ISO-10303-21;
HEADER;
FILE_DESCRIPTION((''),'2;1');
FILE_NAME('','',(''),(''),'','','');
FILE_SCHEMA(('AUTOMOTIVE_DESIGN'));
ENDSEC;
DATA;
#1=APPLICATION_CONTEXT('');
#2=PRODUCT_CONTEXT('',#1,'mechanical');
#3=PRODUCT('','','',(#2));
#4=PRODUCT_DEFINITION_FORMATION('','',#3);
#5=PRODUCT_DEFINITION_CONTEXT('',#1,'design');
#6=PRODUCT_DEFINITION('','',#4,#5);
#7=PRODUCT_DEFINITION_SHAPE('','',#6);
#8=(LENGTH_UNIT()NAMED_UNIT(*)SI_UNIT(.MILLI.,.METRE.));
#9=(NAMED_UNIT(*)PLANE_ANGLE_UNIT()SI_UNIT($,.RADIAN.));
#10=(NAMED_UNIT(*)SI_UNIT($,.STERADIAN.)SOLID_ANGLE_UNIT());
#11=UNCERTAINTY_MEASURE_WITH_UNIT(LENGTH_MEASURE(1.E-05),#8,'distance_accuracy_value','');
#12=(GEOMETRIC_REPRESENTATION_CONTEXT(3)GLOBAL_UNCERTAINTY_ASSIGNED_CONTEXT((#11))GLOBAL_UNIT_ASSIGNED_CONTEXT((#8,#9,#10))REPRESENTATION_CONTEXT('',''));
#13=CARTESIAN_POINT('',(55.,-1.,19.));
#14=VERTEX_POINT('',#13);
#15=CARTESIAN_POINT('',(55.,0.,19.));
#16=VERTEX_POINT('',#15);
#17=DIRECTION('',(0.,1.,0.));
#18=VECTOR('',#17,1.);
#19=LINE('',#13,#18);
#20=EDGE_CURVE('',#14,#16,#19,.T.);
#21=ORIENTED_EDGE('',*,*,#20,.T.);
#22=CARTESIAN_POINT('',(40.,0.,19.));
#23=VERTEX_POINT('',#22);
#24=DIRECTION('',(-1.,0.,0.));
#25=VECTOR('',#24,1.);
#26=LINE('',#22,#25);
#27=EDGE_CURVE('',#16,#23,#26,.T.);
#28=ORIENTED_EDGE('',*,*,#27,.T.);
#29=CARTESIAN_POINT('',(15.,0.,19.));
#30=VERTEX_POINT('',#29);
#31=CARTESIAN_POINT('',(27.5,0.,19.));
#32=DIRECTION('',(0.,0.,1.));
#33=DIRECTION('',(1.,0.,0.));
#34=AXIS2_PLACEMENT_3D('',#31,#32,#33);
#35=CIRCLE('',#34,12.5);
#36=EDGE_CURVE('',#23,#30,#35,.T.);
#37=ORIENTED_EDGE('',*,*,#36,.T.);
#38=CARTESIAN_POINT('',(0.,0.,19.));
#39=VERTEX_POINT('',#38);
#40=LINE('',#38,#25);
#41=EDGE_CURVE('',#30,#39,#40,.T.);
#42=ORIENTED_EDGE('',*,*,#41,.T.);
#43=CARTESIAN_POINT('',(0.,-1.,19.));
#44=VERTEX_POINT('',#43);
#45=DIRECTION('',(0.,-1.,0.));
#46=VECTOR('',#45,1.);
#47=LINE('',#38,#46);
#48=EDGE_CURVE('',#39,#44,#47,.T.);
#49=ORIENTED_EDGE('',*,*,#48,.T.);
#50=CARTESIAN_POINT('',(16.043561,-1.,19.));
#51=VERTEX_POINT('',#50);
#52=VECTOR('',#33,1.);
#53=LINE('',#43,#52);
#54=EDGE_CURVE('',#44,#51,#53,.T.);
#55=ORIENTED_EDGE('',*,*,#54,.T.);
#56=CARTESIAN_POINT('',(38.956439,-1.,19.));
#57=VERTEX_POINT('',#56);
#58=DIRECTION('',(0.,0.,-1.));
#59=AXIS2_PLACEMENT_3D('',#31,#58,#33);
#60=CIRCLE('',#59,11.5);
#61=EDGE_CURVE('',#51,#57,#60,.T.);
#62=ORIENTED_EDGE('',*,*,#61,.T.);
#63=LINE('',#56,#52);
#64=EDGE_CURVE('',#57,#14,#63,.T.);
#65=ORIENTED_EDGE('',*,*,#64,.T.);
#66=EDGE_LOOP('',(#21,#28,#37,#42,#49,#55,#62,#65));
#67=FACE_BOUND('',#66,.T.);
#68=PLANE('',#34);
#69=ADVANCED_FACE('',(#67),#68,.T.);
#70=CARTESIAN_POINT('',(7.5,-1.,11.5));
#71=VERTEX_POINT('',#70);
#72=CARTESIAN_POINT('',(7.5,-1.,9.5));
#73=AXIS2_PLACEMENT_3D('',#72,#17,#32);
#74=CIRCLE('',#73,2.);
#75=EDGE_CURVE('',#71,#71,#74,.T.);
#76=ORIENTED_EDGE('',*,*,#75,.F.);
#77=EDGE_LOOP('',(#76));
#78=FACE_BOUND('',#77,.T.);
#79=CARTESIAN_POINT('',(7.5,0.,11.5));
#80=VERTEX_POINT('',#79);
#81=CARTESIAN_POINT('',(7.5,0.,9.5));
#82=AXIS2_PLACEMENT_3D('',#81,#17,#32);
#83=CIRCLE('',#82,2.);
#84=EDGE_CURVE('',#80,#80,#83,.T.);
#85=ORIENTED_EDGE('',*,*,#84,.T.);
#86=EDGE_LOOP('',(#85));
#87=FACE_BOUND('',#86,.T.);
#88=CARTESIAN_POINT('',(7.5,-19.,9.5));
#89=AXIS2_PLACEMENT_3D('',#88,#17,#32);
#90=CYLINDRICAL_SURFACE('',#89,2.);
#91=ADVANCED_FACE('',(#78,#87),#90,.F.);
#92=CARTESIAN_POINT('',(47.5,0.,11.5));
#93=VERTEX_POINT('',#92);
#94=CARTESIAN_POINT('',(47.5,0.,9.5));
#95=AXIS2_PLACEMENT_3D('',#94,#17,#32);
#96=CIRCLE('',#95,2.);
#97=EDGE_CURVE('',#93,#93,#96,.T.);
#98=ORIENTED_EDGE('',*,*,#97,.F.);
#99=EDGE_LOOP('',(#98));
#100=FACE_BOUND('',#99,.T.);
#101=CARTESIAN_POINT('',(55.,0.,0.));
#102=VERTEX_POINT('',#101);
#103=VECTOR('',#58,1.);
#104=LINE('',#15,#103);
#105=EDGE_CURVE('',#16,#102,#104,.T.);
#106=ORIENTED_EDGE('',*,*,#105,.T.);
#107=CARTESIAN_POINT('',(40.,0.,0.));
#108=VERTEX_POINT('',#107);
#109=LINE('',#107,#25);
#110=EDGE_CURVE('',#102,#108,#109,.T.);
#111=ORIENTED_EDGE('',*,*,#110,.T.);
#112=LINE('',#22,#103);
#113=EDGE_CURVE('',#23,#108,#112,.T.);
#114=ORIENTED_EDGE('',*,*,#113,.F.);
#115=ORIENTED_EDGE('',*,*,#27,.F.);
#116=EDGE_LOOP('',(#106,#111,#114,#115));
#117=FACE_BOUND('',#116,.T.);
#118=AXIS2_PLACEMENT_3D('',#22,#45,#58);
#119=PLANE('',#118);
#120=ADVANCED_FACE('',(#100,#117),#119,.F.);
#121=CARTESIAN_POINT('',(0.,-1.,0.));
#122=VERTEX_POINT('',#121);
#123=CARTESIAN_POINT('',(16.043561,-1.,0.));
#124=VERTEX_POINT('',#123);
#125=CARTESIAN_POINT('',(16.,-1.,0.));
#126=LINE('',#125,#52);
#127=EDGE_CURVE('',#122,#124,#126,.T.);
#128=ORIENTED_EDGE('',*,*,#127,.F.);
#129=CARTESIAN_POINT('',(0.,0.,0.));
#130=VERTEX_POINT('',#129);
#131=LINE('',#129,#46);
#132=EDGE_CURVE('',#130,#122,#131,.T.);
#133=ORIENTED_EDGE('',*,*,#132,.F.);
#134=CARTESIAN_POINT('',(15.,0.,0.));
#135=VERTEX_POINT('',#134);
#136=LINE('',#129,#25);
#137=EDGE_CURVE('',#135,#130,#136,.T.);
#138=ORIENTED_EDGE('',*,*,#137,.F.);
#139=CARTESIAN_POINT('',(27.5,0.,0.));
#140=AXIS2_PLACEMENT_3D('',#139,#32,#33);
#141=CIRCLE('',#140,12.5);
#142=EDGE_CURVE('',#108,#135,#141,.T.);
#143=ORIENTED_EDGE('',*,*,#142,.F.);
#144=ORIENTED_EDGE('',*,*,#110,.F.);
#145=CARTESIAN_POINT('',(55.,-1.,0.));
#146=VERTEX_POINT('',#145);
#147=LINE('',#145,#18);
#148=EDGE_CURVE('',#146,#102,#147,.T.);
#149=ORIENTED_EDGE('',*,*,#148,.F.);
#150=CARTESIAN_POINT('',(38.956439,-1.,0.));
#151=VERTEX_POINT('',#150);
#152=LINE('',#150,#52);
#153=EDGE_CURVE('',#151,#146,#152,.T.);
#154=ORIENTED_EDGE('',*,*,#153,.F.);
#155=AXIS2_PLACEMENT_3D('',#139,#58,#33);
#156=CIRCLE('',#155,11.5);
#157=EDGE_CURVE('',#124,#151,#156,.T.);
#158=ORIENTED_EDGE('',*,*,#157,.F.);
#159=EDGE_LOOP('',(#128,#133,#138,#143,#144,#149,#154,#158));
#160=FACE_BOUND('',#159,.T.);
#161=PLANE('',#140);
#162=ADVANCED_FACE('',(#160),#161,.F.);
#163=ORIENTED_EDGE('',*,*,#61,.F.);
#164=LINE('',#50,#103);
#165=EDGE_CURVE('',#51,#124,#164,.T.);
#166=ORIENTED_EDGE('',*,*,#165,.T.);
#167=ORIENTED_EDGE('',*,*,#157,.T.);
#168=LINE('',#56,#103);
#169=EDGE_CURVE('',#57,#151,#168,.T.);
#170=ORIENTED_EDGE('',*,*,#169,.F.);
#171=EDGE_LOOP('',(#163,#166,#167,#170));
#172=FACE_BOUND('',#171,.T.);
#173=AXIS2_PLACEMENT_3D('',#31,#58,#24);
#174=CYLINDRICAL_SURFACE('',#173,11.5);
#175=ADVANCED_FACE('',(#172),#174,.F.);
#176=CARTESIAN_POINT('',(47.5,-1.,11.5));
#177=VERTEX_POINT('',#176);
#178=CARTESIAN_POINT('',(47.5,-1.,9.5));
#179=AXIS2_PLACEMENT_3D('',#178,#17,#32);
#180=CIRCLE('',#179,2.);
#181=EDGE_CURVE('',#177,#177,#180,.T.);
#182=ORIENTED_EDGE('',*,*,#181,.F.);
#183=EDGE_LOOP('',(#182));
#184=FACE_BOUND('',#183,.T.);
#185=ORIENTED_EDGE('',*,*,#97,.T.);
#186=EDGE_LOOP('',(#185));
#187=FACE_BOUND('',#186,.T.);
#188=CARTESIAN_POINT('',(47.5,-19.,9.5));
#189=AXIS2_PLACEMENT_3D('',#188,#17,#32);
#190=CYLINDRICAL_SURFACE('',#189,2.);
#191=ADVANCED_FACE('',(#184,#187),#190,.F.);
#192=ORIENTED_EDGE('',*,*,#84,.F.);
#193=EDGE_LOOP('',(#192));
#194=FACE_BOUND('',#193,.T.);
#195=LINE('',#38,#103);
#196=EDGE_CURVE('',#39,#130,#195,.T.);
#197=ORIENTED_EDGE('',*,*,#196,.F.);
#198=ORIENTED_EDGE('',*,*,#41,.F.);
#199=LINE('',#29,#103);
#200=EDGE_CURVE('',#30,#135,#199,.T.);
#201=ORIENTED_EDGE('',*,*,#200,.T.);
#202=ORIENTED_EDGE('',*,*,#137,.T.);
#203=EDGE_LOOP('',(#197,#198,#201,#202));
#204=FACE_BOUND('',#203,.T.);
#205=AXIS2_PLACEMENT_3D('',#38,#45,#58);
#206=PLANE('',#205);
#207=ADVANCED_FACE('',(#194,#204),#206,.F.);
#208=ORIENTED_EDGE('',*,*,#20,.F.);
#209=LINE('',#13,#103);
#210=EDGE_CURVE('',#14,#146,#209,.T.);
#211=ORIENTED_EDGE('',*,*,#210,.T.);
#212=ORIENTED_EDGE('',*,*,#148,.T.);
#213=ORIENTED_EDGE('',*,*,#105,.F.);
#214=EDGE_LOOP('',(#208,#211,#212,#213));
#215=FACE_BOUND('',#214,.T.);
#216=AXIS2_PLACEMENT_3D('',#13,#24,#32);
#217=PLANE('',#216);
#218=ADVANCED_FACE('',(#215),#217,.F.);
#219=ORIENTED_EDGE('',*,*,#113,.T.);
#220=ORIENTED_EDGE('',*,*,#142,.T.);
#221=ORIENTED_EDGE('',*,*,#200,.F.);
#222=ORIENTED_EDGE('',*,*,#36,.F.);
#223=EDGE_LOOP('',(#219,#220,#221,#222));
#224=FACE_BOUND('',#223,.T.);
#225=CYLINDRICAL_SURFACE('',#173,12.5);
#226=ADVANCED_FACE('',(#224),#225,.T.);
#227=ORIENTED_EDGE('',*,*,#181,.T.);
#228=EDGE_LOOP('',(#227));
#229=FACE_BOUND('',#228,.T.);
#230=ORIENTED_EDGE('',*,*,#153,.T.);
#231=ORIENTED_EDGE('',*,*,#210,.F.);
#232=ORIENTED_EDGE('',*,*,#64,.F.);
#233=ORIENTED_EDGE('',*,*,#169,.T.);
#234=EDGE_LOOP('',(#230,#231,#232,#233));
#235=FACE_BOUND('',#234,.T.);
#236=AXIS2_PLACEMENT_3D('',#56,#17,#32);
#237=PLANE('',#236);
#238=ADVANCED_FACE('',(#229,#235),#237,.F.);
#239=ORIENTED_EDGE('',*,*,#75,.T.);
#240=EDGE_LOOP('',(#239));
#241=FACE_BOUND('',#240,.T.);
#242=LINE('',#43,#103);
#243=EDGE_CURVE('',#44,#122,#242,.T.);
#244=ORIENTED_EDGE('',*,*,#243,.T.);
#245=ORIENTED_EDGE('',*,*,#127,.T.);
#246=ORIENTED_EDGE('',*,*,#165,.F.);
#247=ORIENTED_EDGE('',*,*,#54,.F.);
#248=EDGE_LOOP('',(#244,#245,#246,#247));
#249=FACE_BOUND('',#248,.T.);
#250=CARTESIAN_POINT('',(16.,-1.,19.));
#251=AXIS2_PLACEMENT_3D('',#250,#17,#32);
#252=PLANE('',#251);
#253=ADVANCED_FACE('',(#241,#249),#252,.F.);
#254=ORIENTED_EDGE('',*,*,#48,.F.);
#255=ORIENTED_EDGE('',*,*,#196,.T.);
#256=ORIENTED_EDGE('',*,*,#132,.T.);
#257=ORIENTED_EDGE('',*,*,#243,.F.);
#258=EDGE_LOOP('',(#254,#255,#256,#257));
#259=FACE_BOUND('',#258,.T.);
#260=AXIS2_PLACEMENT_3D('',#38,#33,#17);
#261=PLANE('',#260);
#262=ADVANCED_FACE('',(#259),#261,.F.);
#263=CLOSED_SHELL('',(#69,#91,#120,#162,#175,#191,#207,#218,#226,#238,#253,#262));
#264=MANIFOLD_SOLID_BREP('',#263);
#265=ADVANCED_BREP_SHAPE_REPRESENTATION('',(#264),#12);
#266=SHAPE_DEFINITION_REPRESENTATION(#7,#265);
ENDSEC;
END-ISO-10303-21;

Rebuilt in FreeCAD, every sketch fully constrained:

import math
import FreeCAD as App
import Part
import Sketcher

V = App.Vector

doc = App.newDocument("Part")
params = doc.addObject("Spreadsheet::Sheet", "Params")
for row, (alias, value) in enumerate([
    ("sketch1_radius", "11.5 mm"),
    ("sketch1_radius2", "12.5 mm"),
    ("sketch1_width", "15 mm"),
    ("sketch1_height", "1 mm"),
    ("pad1_length", "19 mm"),
    ("sketch2_diameter", "4 mm"),
    ("pocket1_length", "19 mm"),
], start=1):
    params.set(f"A{row}", alias)
    params.set(f"B{row}", "=" + value)
    params.setAlias(f"B{row}", alias)

body = doc.addObject("PartDesign::Body", "Body")

sketch1 = doc.addObject("Sketcher::SketchObject", "Sketch")
body.addObject(sketch1)
sketch1.AttachmentSupport = (doc.XY_Plane, [""])
sketch1.MapMode = "FlatFace"
sketch1.addGeometry(Part.LineSegment(V(15, 0, 0), V(0, 0, 0)), False)
sketch1.addGeometry(Part.LineSegment(V(0, 0, 0), V(0, -1, 0)), False)
sketch1.addGeometry(Part.LineSegment(V(0, -1, 0), V(16.043561, -1, 0)), False)
sketch1.addGeometry(Part.ArcOfCircle(Part.Circle(V(27.5, 0, 0), V(0, 0, 1), 11.5), math.radians(-4.988542), math.radians(184.988542)), False)
sketch1.addGeometry(Part.LineSegment(V(38.956439, -1, 0), V(55, -1, 0)), False)
sketch1.addGeometry(Part.LineSegment(V(55, -1, 0), V(55, 0, 0)), False)
sketch1.addGeometry(Part.LineSegment(V(55, 0, 0), V(40, 0, 0)), False)
sketch1.addGeometry(Part.ArcOfCircle(Part.Circle(V(27.5, 0, 0), V(0, 0, 1), 12.5), math.radians(0), math.radians(180)), False)
sketch1.addConstraint(Sketcher.Constraint("Coincident", 0, 2, 1, 1))
sketch1.addConstraint(Sketcher.Constraint("Coincident", 1, 2, 2, 1))
sketch1.addConstraint(Sketcher.Constraint("Coincident", 2, 2, 3, 2))
sketch1.addConstraint(Sketcher.Constraint("Coincident", 3, 1, 4, 1))
sketch1.addConstraint(Sketcher.Constraint("Coincident", 4, 2, 5, 1))
sketch1.addConstraint(Sketcher.Constraint("Coincident", 5, 2, 6, 1))
sketch1.addConstraint(Sketcher.Constraint("Coincident", 6, 2, 7, 1))
sketch1.addConstraint(Sketcher.Constraint("Coincident", 7, 2, 0, 1))
sketch1.addConstraint(Sketcher.Constraint("Horizontal", 0))
sketch1.addConstraint(Sketcher.Constraint("Vertical", 1))
sketch1.addConstraint(Sketcher.Constraint("Horizontal", 2))
sketch1.addConstraint(Sketcher.Constraint("Horizontal", 4))
sketch1.addConstraint(Sketcher.Constraint("Vertical", 5))
sketch1.addConstraint(Sketcher.Constraint("Horizontal", 6))
sketch1.addConstraint(Sketcher.Constraint("Coincident", 0, 2, -1, 1))
sketch1.addConstraint(Sketcher.Constraint("Coincident", 7, 3, 3, 3))
sketch1.addConstraint(Sketcher.Constraint("PointOnObject", 3, 3, -1))
sketch1.addConstraint(Sketcher.Constraint("PointOnObject", 5, 2, -1))
sketch1.addConstraint(Sketcher.Constraint("Horizontal", 2, 2, 3, 1))
sketch1.addConstraint(Sketcher.Constraint("Equal", 2, 4))
sketch1.addConstraint(Sketcher.Constraint("Radius", 3, 11.5))
sketch1.addConstraint(Sketcher.Constraint("Radius", 7, 12.5))
sketch1.addConstraint(Sketcher.Constraint("DistanceX", 0, 2, 0, 1, 15.0))
sketch1.addConstraint(Sketcher.Constraint("DistanceY", 1, 2, 1, 1, 1.0))
sketch1.setExpression("Constraints[20]", "Params.sketch1_radius")
sketch1.setExpression("Constraints[21]", "Params.sketch1_radius2")
sketch1.setExpression("Constraints[22]", "Params.sketch1_width")
sketch1.setExpression("Constraints[23]", "Params.sketch1_height")
pad1 = doc.addObject("PartDesign::Pad", "Pad")
body.addObject(pad1)
pad1.Profile = sketch1
pad1.setExpression("Length", "Params.pad1_length")

sketch2 = doc.addObject("Sketcher::SketchObject", "Sketch001")
body.addObject(sketch2)
sketch2.AttachmentSupport = (doc.XZ_Plane, [""])
sketch2.MapMode = "FlatFace"
sketch2.addGeometry(Part.Circle(V(7.5, 9.5, 0), V(0, 0, 1), 2), False)
sketch2.addGeometry(Part.Circle(V(47.5, 9.5, 0), V(0, 0, 1), 2), False)
sketch2.addConstraint(Sketcher.Constraint("Equal", 0, 1))
sketch2.addConstraint(Sketcher.Constraint("Horizontal", 0, 3, 1, 3))
sketch2.addConstraint(Sketcher.Constraint("Diameter", 0, 4.0))
sketch2.addConstraint(Sketcher.Constraint("DistanceX", 0, 3, 1, 3, 40.0))
sketch2.addConstraint(Sketcher.Constraint("DistanceX", -1, 1, 0, 3, 7.5))
sketch2.addConstraint(Sketcher.Constraint("DistanceY", -1, 1, 0, 3, 9.5))
sketch2.setExpression("Constraints[2]", "Params.sketch2_diameter")
pocket1 = doc.addObject("PartDesign::Pocket", "Pocket")
body.addObject(pocket1)
pocket1.Profile = sketch2
pocket1.setExpression("Length", "Params.pocket1_length")
pocket1.Reversed = True

doc.recompute()
